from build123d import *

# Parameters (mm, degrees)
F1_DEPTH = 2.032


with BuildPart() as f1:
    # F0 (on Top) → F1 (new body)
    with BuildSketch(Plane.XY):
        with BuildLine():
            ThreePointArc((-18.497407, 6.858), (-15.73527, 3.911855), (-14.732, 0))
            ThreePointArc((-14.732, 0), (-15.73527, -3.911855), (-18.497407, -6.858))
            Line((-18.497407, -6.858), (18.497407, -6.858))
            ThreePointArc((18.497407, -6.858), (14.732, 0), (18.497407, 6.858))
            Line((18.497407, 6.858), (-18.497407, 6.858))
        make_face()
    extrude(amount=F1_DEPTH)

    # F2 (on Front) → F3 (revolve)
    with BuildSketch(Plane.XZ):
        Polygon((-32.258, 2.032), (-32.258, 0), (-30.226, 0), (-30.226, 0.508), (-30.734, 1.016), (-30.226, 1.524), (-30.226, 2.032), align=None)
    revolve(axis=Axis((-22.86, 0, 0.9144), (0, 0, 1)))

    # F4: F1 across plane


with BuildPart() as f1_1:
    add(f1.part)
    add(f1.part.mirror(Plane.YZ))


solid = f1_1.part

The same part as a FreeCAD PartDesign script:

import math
import FreeCAD as App
import Part
import Sketcher

V = App.Vector
Q = App.Units.Quantity


def add_polygon(sketch, points):
    """Adds a closed chain of lines whose ends are joined by coincident constraints."""
    first, n = sketch.GeometryCount, len(points)
    for a, b in zip(points, points[1:] + points[:1]):
        sketch.addGeometry(Part.LineSegment(App.Vector(*a, 0), App.Vector(*b, 0)), False)
    for i in range(n):
        sketch.addConstraint(Sketcher.Constraint("Coincident", first + i, 2, first + (i + 1) % n, 1))

doc = App.newDocument("Part")
body = doc.addObject("PartDesign::Body", "Body")

# Sketch on XY plane
sketch1 = body.newObject("Sketcher::SketchObject", "Sketch")
sketch1.AttachmentSupport = (doc.getObject("XY_Plane"), [""])
sketch1.MapMode = "FlatFace"
sketch1.addGeometry([
    Part.ArcOfCircle(Part.Circle(V(-23, 0, 0), V(0, 0, 1), 8), math.radians(0), math.radians(58)),  # 0
    Part.ArcOfCircle(Part.Circle(V(-23, 0, 0), V(0, 0, 1), 8), math.radians(-58), math.radians(0)),  # 1
    Part.LineSegment(V(-18, -7, 0), V(18, -7, 0)),  # 2
    Part.ArcOfCircle(Part.Circle(V(23, 0, 0), V(0, 0, 1), 8), math.radians(122), math.radians(238)),  # 3
    Part.LineSegment(V(18, 7, 0), V(-18, 7, 0)),  # 4
], False)
sketch1.addConstraint([
    Sketcher.Constraint("Tangent", 0, 1, 1, 2),
    Sketcher.Constraint("Coincident", 1, 1, 2, 1),
    Sketcher.Constraint("Coincident", 2, 2, 3, 2),
    Sketcher.Constraint("Coincident", 3, 1, 4, 1),
    Sketcher.Constraint("Coincident", 4, 2, 0, 2),
    Sketcher.Constraint("Horizontal", 2),
    Sketcher.Constraint("Horizontal", 4),
    Sketcher.Constraint("Equal", 0, 1),
    Sketcher.Constraint("Equal", 1, 3),
    Sketcher.Constraint("Symmetric", 0, 3, 3, 3, -1, 1),
    Sketcher.Constraint("Symmetric", 2, 2, 3, 1, -1),
    Sketcher.Constraint("PointOnObject", 0, 1, -1),
    Sketcher.Constraint("Radius", 0, Q("0.3199999 in")),
    Sketcher.Constraint("DistanceX", 0, 3, -1, 1, Q("0.8999999 in")),
    Sketcher.Constraint("DistanceY", 1, 1, -1, 1, Q("0.27 in")),
])
pad1 = body.newObject("PartDesign::Pad", "Pad")
pad1.Profile = sketch1
pad1.Length = Q("0.08 in")

# Sketch on XZ plane
sketch2 = body.newObject("Sketcher::SketchObject", "Sketch001")
sketch2.AttachmentSupport = (doc.getObject("XZ_Plane"), [""])
sketch2.MapMode = "FlatFace"
add_polygon(sketch2, [(-32.3, 2), (-32.3, 0), (-30.2, 0), (-30.2, 0.5), (-30.7, 1), (-30.2, 1.5), (-30.2, 2)])  # lines 0-6
sketch2.addGeometry(Part.LineSegment(V(-22.9, 0, 0), V(-22.9, 2, 0)), True)  # axis
sketch2.addConstraint([
    Sketcher.Constraint("Vertical", 0),
    Sketcher.Constraint("Horizontal", 1),
    Sketcher.Constraint("Vertical", 2),
    Sketcher.Constraint("Vertical", 5),
    Sketcher.Constraint("Horizontal", 6),
    Sketcher.Constraint("Vertical", 7),
    Sketcher.Constraint("PointOnObject", 0, 2, -1),
    Sketcher.Constraint("PointOnObject", 7, 1, -1),
    Sketcher.Constraint("Perpendicular", 3, 4),
    Sketcher.Constraint("Horizontal", 6, 2, 7, 2),
    Sketcher.Constraint("Vertical", 2, 2, 4, 2),
    Sketcher.Constraint("Equal", 6, 0),
    Sketcher.Constraint("Equal", 2, 5),
    Sketcher.Constraint("Equal", 3, 4),
    Sketcher.Constraint("DistanceX", 1, 1, 1, 2, Q("0.08 in")),
    Sketcher.Constraint("DistanceY", 2, 1, 2, 2, Q("0.02 in")),
    Sketcher.Constraint("DistanceX", 7, 1, -1, 1, Q("0.9 in")),
    Sketcher.Constraint("DistanceX", 0, 2, -1, 1, Q("1.27 in")),
])
revolution = body.newObject("PartDesign::Revolution", "Revolution")
revolution.Profile = sketch2
revolution.ReferenceAxis = (sketch2, ["Axis0"])
revolution.Angle = 360
body2 = doc.addObject("PartDesign::Body", "Body001")
doc.recompute()

body2.BaseFeature = body
doc.recompute()

mirroring = doc.addObject("Part::Mirroring", "Mirroring")
mirroring.Source = body
mirroring.Base = V(0, 0, 0)
mirroring.Normal = V(1, 0, 0)
body3 = doc.addObject("PartDesign::Body", "Body002")
body3.BaseFeature = mirroring
boolean = body2.newObject("PartDesign::Boolean", "Boolean")
boolean.Type = "Fuse"
boolean.addObjects([body3])
doc.recompute()
mirroring.Visibility = False

doc.recompute()
